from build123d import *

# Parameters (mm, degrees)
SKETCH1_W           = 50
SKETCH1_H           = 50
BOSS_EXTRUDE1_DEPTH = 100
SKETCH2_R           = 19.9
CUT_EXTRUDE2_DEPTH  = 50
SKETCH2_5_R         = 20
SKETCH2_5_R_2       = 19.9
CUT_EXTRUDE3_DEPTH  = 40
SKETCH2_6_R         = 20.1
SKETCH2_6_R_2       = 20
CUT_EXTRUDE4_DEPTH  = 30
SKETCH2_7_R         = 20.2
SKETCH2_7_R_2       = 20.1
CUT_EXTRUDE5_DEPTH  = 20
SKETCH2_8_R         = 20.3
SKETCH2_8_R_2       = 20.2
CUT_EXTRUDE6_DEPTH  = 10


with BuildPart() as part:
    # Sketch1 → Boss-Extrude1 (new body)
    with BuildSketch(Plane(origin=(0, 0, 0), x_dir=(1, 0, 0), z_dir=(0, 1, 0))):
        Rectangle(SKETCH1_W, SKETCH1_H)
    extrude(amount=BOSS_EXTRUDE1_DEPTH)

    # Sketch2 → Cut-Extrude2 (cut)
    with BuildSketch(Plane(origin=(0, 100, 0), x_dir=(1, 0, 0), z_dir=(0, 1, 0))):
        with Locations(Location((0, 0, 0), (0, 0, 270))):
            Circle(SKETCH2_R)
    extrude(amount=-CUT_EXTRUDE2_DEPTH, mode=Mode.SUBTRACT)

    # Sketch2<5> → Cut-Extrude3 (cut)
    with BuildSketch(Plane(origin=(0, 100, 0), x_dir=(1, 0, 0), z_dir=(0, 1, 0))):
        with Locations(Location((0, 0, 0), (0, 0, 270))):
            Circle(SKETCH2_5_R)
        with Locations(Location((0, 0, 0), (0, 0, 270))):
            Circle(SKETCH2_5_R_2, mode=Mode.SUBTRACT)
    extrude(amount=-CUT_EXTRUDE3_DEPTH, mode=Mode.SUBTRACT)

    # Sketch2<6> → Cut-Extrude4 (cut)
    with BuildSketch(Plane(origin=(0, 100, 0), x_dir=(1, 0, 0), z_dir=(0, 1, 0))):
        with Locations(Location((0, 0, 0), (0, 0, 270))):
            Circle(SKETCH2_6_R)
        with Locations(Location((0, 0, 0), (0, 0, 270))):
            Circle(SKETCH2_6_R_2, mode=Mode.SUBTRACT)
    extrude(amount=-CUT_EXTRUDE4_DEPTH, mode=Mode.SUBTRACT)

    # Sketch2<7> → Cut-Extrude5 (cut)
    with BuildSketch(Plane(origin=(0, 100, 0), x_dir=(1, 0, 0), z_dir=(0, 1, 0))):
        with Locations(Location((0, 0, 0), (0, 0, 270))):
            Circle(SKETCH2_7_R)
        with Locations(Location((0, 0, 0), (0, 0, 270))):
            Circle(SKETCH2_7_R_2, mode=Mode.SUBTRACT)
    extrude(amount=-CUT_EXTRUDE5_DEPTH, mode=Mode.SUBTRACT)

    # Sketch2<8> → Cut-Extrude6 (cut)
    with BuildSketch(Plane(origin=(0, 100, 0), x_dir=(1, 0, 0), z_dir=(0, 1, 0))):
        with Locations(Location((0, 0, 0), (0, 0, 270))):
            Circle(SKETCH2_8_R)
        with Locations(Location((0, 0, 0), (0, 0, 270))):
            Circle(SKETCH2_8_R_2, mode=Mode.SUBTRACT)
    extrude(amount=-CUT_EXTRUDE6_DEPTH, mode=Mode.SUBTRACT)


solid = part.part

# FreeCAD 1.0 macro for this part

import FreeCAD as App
import Part
import Sketcher
Q = App.Units.Quantity

doc = App.newDocument("Part")
body = doc.addObject("PartDesign::Body", "Body")

# Sketch on XZ plane
sketch1 = doc.addObject("Sketcher::SketchObject", "Sketch")
body.addObject(sketch1)
sketch1.AttachmentSupport = (doc.XZ_Plane, [""])
sketch1.MapMode = "FlatFace"
sketch1.addGeometry(Part.LineSegment(App.Vector(-25, -25, 0), App.Vector(-25, 25, 0)), False)
sketch1.addGeometry(Part.LineSegment(App.Vector(-25, 25, 0), App.Vector(25, 25, 0)), False)
sketch1.addGeometry(Part.LineSegment(App.Vector(25, 25, 0), App.Vector(25, -25, 0)), False)
sketch1.addGeometry(Part.LineSegment(App.Vector(25, -25, 0), App.Vector(-25, -25, 0)), False)
sketch1.addConstraint(Sketcher.Constraint("Coincident", 0, 2, 1, 1))
sketch1.addConstraint(Sketcher.Constraint("Coincident", 1, 2, 2, 1))
sketch1.addConstraint(Sketcher.Constraint("Coincident", 2, 2, 3, 1))
sketch1.addConstraint(Sketcher.Constraint("Coincident", 3, 2, 0, 1))
sketch1.addConstraint(Sketcher.Constraint("Vertical", 0))
sketch1.addConstraint(Sketcher.Constraint("Horizontal", 1))
sketch1.addConstraint(Sketcher.Constraint("Vertical", 2))
sketch1.addConstraint(Sketcher.Constraint("Horizontal", 3))
sketch1.addConstraint(Sketcher.Constraint("Symmetric", 0, 2, 2, 2, -1, 1))
sketch1.addConstraint(Sketcher.Constraint("Equal", 3, 0))
sketch1.addConstraint(Sketcher.Constraint("DistanceX", 1, 1, 1, 2, Q("50 mm")))
pad1 = doc.addObject("PartDesign::Pad", "Pad")
body.addObject(pad1)
pad1.Profile = sketch1
pad1.Length = 100
pad1.Reversed = True

# Sketch on XZ plane
sketch2 = doc.addObject("Sketcher::SketchObject", "Sketch001")
body.addObject(sketch2)
sketch2.AttachmentSupport = (doc.XZ_Plane, [""])
sketch2.MapMode = "FlatFace"
sketch2.AttachmentOffset = App.Placement(App.Vector(0, 0, -100), App.Rotation())
sketch2.addGeometry(Part.Circle(App.Vector(0, 0, 0), App.Vector(0, 0, 1), 20), False)
sketch2.addConstraint(Sketcher.Constraint("Coincident", 0, 3, -1, 1))
sketch2.addConstraint(Sketcher.Constraint("Diameter", 0, Q("39.8 mm")))
pocket1 = doc.addObject("PartDesign::Pocket", "Pocket")
body.addObject(pocket1)
pocket1.Profile = sketch2
pocket1.Length = 50
pocket1.Reversed = True

# Sketch on XZ plane
sketch3 = doc.addObject("Sketcher::SketchObject", "Sketch002")
body.addObject(sketch3)
sketch3.AttachmentSupport = (doc.XZ_Plane, [""])
sketch3.MapMode = "FlatFace"
sketch3.AttachmentOffset = App.Placement(App.Vector(0, 0, -100), App.Rotation())
sketch3.addGeometry(Part.Circle(App.Vector(0, 0, 0), App.Vector(0, 0, 1), 20), False)
sketch3.addGeometry(Part.Circle(App.Vector(0, 0, 0), App.Vector(0, 0, 1), 20), False)
sketch3.addConstraint(Sketcher.Constraint("Coincident", 0, 3, -1, 1))
sketch3.addConstraint(Sketcher.Constraint("Coincident", 1, 3, -1, 1))
sketch3.addConstraint(Sketcher.Constraint("Diameter", 0, Q("40 mm")))
sketch3.addConstraint(Sketcher.Constraint("Diameter", 1, Q("39.8 mm")))
pocket2 = doc.addObject("PartDesign::Pocket", "Pocket001")
body.addObject(pocket2)
pocket2.Profile = sketch3
pocket2.Length = 40
pocket2.Reversed = True

# Sketch on XZ plane
sketch4 = doc.addObject("Sketcher::SketchObject", "Sketch003")
body.addObject(sketch4)
sketch4.AttachmentSupport = (doc.XZ_Plane, [""])
sketch4.MapMode = "FlatFace"
sketch4.AttachmentOffset = App.Placement(App.Vector(0, 0, -100), App.Rotation())
sketch4.addGeometry(Part.Circle(App.Vector(0, 0, 0), App.Vector(0, 0, 1), 20), False)
sketch4.addGeometry(Part.Circle(App.Vector(0, 0, 0), App.Vector(0, 0, 1), 20), False)
sketch4.addConstraint(Sketcher.Constraint("Coincident", 0, 3, -1, 1))
sketch4.addConstraint(Sketcher.Constraint("Coincident", 1, 3, -1, 1))
sketch4.addConstraint(Sketcher.Constraint("Diameter", 1, Q("40 mm")))
sketch4.addConstraint(Sketcher.Constraint("Diameter", 0, Q("40.2 mm")))
pocket3 = doc.addObject("PartDesign::Pocket", "Pocket002")
body.addObject(pocket3)
pocket3.Profile = sketch4
pocket3.Length = 30
pocket3.Reversed = True

# Sketch on XZ plane
sketch5 = doc.addObject("Sketcher::SketchObject", "Sketch004")
body.addObject(sketch5)
sketch5.AttachmentSupport = (doc.XZ_Plane, [""])
sketch5.MapMode = "FlatFace"
sketch5.AttachmentOffset = App.Placement(App.Vector(0, 0, -100), App.Rotation())
sketch5.addGeometry(Part.Circle(App.Vector(0, 0, 0), App.Vector(0, 0, 1), 20), False)
sketch5.addGeometry(Part.Circle(App.Vector(0, 0, 0), App.Vector(0, 0, 1), 20), False)
sketch5.addConstraint(Sketcher.Constraint("Coincident", 0, 3, -1, 1))
sketch5.addConstraint(Sketcher.Constraint("Coincident", 1, 3, -1, 1))
sketch5.addConstraint(Sketcher.Constraint("Diameter", 0, Q("40.4 mm")))
sketch5.addConstraint(Sketcher.Constraint("Diameter", 1, Q("40.2 mm")))
pocket4 = doc.addObject("PartDesign::Pocket", "Pocket003")
body.addObject(pocket4)
pocket4.Profile = sketch5
pocket4.Length = 20
pocket4.Reversed = True

# Sketch on XZ plane
sketch6 = doc.addObject("Sketcher::SketchObject", "Sketch005")
body.addObject(sketch6)
sketch6.AttachmentSupport = (doc.XZ_Plane, [""])
sketch6.MapMode = "FlatFace"
sketch6.AttachmentOffset = App.Placement(App.Vector(0, 0, -100), App.Rotation())
sketch6.addGeometry(Part.Circle(App.Vector(0, 0, 0), App.Vector(0, 0, 1), 20), False)
sketch6.addGeometry(Part.Circle(App.Vector(0, 0, 0), App.Vector(0, 0, 1), 20), False)
sketch6.addConstraint(Sketcher.Constraint("Coincident", 0, 3, -1, 1))
sketch6.addConstraint(Sketcher.Constraint("Coincident", 1, 3, -1, 1))
sketch6.addConstraint(Sketcher.Constraint("Diameter", 0, Q("40.6 mm")))
sketch6.addConstraint(Sketcher.Constraint("Diameter", 1, Q("40.4 mm")))
pocket5 = doc.addObject("PartDesign::Pocket", "Pocket004")
body.addObject(pocket5)
pocket5.Profile = sketch6
pocket5.Length = 10
pocket5.Reversed = True

doc.recompute()
